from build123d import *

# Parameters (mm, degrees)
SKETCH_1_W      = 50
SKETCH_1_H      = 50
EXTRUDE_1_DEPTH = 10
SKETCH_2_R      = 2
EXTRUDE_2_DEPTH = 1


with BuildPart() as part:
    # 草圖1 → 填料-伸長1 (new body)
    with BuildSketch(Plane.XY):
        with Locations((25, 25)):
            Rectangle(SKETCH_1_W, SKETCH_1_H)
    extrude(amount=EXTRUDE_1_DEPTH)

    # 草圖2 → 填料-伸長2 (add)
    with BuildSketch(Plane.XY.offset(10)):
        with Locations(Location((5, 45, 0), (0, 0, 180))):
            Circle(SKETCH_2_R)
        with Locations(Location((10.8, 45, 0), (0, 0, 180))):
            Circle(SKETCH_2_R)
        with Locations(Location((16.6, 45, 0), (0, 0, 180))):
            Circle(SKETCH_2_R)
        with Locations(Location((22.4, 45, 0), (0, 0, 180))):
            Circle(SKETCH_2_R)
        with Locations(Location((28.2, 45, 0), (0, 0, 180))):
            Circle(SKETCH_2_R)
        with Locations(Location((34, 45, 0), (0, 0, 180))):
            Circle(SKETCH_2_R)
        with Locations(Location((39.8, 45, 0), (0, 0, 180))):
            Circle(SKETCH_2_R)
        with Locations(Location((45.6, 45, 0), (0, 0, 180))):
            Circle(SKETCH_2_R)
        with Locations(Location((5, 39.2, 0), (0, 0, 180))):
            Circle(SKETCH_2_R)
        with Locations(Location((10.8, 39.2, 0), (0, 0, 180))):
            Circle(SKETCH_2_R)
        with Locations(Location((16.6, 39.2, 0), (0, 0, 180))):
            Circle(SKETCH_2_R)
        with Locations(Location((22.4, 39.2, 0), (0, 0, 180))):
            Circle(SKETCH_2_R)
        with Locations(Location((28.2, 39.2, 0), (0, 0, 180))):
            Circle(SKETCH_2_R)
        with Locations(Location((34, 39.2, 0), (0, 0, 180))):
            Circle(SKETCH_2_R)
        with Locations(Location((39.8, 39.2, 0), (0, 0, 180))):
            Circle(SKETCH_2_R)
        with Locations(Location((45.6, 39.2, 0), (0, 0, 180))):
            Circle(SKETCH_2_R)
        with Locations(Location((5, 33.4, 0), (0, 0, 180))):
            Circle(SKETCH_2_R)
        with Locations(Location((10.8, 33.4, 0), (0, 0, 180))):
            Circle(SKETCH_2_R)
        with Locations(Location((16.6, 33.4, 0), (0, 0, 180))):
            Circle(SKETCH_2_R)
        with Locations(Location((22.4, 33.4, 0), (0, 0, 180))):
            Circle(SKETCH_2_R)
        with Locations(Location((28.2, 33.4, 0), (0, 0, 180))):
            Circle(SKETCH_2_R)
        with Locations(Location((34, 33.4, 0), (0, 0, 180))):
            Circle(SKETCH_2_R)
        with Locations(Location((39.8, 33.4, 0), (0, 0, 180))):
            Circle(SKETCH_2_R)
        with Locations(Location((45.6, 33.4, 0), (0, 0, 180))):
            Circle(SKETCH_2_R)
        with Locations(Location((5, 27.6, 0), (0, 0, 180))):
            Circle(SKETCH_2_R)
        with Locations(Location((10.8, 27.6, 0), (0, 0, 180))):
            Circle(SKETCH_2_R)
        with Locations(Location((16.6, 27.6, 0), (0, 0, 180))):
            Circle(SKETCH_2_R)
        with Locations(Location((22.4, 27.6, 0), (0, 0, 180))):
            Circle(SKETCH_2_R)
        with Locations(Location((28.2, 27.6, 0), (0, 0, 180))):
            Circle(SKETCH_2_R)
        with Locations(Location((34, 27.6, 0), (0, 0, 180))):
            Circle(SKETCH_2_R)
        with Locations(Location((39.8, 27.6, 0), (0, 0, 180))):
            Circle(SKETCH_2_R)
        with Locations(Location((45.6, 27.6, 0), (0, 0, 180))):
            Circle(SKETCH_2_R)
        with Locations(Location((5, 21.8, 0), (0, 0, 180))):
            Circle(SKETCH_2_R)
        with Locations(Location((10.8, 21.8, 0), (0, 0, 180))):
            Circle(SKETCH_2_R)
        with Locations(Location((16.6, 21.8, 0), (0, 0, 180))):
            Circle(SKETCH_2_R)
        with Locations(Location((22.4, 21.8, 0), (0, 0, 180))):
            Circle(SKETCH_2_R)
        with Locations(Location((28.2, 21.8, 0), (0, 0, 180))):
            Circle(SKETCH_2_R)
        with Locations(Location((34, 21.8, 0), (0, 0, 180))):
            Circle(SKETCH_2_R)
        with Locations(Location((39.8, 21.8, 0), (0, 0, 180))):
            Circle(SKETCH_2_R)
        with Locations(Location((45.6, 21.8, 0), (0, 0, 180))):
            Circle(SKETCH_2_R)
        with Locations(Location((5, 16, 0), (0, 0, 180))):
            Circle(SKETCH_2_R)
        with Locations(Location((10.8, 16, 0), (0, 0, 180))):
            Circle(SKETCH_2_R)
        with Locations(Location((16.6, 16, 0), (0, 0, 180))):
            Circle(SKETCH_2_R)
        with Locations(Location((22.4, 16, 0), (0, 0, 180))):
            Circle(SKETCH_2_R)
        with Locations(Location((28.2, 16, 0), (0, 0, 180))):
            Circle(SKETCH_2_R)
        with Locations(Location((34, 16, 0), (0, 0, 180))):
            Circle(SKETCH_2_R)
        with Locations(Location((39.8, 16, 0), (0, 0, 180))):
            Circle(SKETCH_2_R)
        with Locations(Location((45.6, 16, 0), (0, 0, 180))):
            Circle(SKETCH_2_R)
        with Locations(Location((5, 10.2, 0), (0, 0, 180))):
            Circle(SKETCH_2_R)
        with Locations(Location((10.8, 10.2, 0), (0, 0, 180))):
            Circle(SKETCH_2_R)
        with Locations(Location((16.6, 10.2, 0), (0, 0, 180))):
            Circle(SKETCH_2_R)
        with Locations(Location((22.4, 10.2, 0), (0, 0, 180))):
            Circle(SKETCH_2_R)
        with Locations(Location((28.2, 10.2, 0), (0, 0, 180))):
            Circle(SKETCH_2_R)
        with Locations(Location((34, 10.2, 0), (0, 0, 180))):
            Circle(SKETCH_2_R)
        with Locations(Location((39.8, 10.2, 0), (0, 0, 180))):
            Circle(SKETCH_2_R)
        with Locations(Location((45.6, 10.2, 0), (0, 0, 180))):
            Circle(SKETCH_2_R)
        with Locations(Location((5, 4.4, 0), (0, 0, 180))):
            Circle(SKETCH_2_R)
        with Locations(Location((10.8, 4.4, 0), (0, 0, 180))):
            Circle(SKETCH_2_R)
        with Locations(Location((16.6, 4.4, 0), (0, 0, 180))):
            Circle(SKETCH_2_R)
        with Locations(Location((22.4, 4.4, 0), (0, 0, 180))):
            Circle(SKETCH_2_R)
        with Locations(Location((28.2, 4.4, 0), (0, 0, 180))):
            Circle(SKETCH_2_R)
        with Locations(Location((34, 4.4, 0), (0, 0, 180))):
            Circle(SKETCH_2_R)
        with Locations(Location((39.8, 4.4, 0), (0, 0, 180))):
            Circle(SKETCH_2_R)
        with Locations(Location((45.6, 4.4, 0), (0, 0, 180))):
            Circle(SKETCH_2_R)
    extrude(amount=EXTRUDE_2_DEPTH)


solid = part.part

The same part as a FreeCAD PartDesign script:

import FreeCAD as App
import Part
import Sketcher

V = App.Vector
Q = App.Units.Quantity

doc = App.newDocument("Part")
body = doc.addObject("PartDesign::Body", "Body")

# Sketch on XY plane
sketch1 = body.newObject("Sketcher::SketchObject", "Sketch")
sketch1.AttachmentSupport = (doc.getObject("XY_Plane"), [""])
sketch1.MapMode = "FlatFace"
sketch1.addGeometry([
    Part.LineSegment(V(0, 50, 0), V(0, 0, 0)),
    Part.LineSegment(V(0, 0, 0), V(50, 0, 0)),
    Part.LineSegment(V(50, 0, 0), V(50, 50, 0)),
    Part.LineSegment(V(50, 50, 0), V(0, 50, 0)),
], False)
sketch1.addConstraint([
    Sketcher.Constraint("Coincident", 0, 2, 1, 1),
    Sketcher.Constraint("Coincident", 1, 2, 2, 1),
    Sketcher.Constraint("Coincident", 2, 2, 3, 1),
    Sketcher.Constraint("Coincident", 3, 2, 0, 1),
    Sketcher.Constraint("Vertical", 0),
    Sketcher.Constraint("Horizontal", 1),
    Sketcher.Constraint("Vertical", 2),
    Sketcher.Constraint("Horizontal", 3),
    Sketcher.Constraint("Coincident", 0, 2, -1, 1),
    Sketcher.Constraint("Equal", 3, 0),
    Sketcher.Constraint("DistanceX", 1, 1, 1, 2, Q("50 mm")),
])
pad1 = body.newObject("PartDesign::Pad", "Pad")
pad1.Profile = sketch1
pad1.Length = 10

# Sketch on XY plane
sketch2 = body.newObject("Sketcher::SketchObject", "Sketch001")
sketch2.AttachmentSupport = (doc.getObject("XY_Plane"), [""])
sketch2.MapMode = "FlatFace"
sketch2.AttachmentOffset = App.Placement(V(0, 0, 10), App.Rotation())
sketch2.addGeometry([
    Part.Circle(V(5, 45, 0), V(0, 0, 1), 2),  # 0
    Part.Circle(V(10.8, 45, 0), V(0, 0, 1), 2),  # 1
    Part.Circle(V(16.6, 45, 0), V(0, 0, 1), 2),  # 2
    Part.Circle(V(22.4, 45, 0), V(0, 0, 1), 2),  # 3
    Part.Circle(V(28.2, 45, 0), V(0, 0, 1), 2),  # 4
    Part.Circle(V(34, 45, 0), V(0, 0, 1), 2),  # 5
    Part.Circle(V(39.8, 45, 0), V(0, 0, 1), 2),  # 6
    Part.Circle(V(45.6, 45, 0), V(0, 0, 1), 2),  # 7
    Part.Circle(V(5, 39.2, 0), V(0, 0, 1), 2),  # 8
    Part.Circle(V(10.8, 39.2, 0), V(0, 0, 1), 2),  # 9
    Part.Circle(V(16.6, 39.2, 0), V(0, 0, 1), 2),  # 10
    Part.Circle(V(22.4, 39.2, 0), V(0, 0, 1), 2),  # 11
    Part.Circle(V(28.2, 39.2, 0), V(0, 0, 1), 2),  # 12
    Part.Circle(V(34, 39.2, 0), V(0, 0, 1), 2),  # 13
    Part.Circle(V(39.8, 39.2, 0), V(0, 0, 1), 2),  # 14
    Part.Circle(V(45.6, 39.2, 0), V(0, 0, 1), 2),  # 15
    Part.Circle(V(5, 33.4, 0), V(0, 0, 1), 2),  # 16
    Part.Circle(V(10.8, 33.4, 0), V(0, 0, 1), 2),  # 17
    Part.Circle(V(16.6, 33.4, 0), V(0, 0, 1), 2),  # 18
    Part.Circle(V(22.4, 33.4, 0), V(0, 0, 1), 2),  # 19
    Part.Circle(V(28.2, 33.4, 0), V(0, 0, 1), 2),  # 20
    Part.Circle(V(34, 33.4, 0), V(0, 0, 1), 2),  # 21
    Part.Circle(V(39.8, 33.4, 0), V(0, 0, 1), 2),  # 22
    Part.Circle(V(45.6, 33.4, 0), V(0, 0, 1), 2),  # 23
    Part.Circle(V(5, 27.6, 0), V(0, 0, 1), 2),  # 24
    Part.Circle(V(10.8, 27.6, 0), V(0, 0, 1), 2),  # 25
    Part.Circle(V(16.6, 27.6, 0), V(0, 0, 1), 2),  # 26
    Part.Circle(V(22.4, 27.6, 0), V(0, 0, 1), 2),  # 27
    Part.Circle(V(28.2, 27.6, 0), V(0, 0, 1), 2),  # 28
    Part.Circle(V(34, 27.6, 0), V(0, 0, 1), 2),  # 29
    Part.Circle(V(39.8, 27.6, 0), V(0, 0, 1), 2),  # 30
    Part.Circle(V(45.6, 27.6, 0), V(0, 0, 1), 2),  # 31
    Part.Circle(V(5, 21.8, 0), V(0, 0, 1), 2),  # 32
    Part.Circle(V(10.8, 21.8, 0), V(0, 0, 1), 2),  # 33
    Part.Circle(V(16.6, 21.8, 0), V(0, 0, 1), 2),  # 34
    Part.Circle(V(22.4, 21.8, 0), V(0, 0, 1), 2),  # 35
    Part.Circle(V(28.2, 21.8, 0), V(0, 0, 1), 2),  # 36
    Part.Circle(V(34, 21.8, 0), V(0, 0, 1), 2),  # 37
    Part.Circle(V(39.8, 21.8, 0), V(0, 0, 1), 2),  # 38
    Part.Circle(V(45.6, 21.8, 0), V(0, 0, 1), 2),  # 39
    Part.Circle(V(5, 16, 0), V(0, 0, 1), 2),  # 40
    Part.Circle(V(10.8, 16, 0), V(0, 0, 1), 2),  # 41
    Part.Circle(V(16.6, 16, 0), V(0, 0, 1), 2),  # 42
    Part.Circle(V(22.4, 16, 0), V(0, 0, 1), 2),  # 43
    Part.Circle(V(28.2, 16, 0), V(0, 0, 1), 2),  # 44
    Part.Circle(V(34, 16, 0), V(0, 0, 1), 2),  # 45
    Part.Circle(V(39.8, 16, 0), V(0, 0, 1), 2),  # 46
    Part.Circle(V(45.6, 16, 0), V(0, 0, 1), 2),  # 47
    Part.Circle(V(5, 10.2, 0), V(0, 0, 1), 2),  # 48
    Part.Circle(V(10.8, 10.2, 0), V(0, 0, 1), 2),  # 49
    Part.Circle(V(16.6, 10.2, 0), V(0, 0, 1), 2),  # 50
    Part.Circle(V(22.4, 10.2, 0), V(0, 0, 1), 2),  # 51
    Part.Circle(V(28.2, 10.2, 0), V(0, 0, 1), 2),  # 52
    Part.Circle(V(34, 10.2, 0), V(0, 0, 1), 2),  # 53
    Part.Circle(V(39.8, 10.2, 0), V(0, 0, 1), 2),  # 54
    Part.Circle(V(45.6, 10.2, 0), V(0, 0, 1), 2),  # 55
    Part.Circle(V(5, 4.4, 0), V(0, 0, 1), 2),  # 56
    Part.Circle(V(10.8, 4.4, 0), V(0, 0, 1), 2),  # 57
    Part.Circle(V(16.6, 4.4, 0), V(0, 0, 1), 2),  # 58
    Part.Circle(V(22.4, 4.4, 0), V(0, 0, 1), 2),  # 59
    Part.Circle(V(28.2, 4.4, 0), V(0, 0, 1), 2),  # 60
    Part.Circle(V(34, 4.4, 0), V(0, 0, 1), 2),  # 61
    Part.Circle(V(39.8, 4.4, 0), V(0, 0, 1), 2),  # 62
    Part.Circle(V(45.6, 4.4, 0), V(0, 0, 1), 2),  # 63
], False)
sketch2.addConstraint([
    Sketcher.Constraint("Equal", 0, 1),
    Sketcher.Constraint("Equal", 1, 2),
    Sketcher.Constraint("Equal", 2, 3),
    Sketcher.Constraint("Equal", 3, 4),
    Sketcher.Constraint("Equal", 4, 5),
    Sketcher.Constraint("Equal", 5, 6),
    Sketcher.Constraint("Equal", 6, 7),
    Sketcher.Constraint("Equal", 7, 8),
    Sketcher.Constraint("Equal", 8, 9),
    Sketcher.Constraint("Equal", 9, 10),
    Sketcher.Constraint("Equal", 10, 11),
    Sketcher.Constraint("Equal", 11, 12),
    Sketcher.Constraint("Equal", 12, 13),
    Sketcher.Constraint("Equal", 13, 14),
    Sketcher.Constraint("Equal", 14, 15),
    Sketcher.Constraint("Equal", 15, 16),
    Sketcher.Constraint("Equal", 16, 17),
    Sketcher.Constraint("Equal", 17, 18),
    Sketcher.Constraint("Equal", 18, 19),
    Sketcher.Constraint("Equal", 19, 20),
    Sketcher.Constraint("Equal", 20, 21),
    Sketcher.Constraint("Equal", 21, 22),
    Sketcher.Constraint("Equal", 22, 23),
    Sketcher.Constraint("Equal", 23, 24),
    Sketcher.Constraint("Equal", 24, 25),
    Sketcher.Constraint("Equal", 25, 26),
    Sketcher.Constraint("Equal", 26, 27),
    Sketcher.Constraint("Equal", 27, 28),
    Sketcher.Constraint("Equal", 28, 29),
    Sketcher.Constraint("Equal", 29, 30),
    Sketcher.Constraint("Equal", 30, 31),
    Sketcher.Constraint("Equal", 31, 32),
    Sketcher.Constraint("Equal", 32, 33),
    Sketcher.Constraint("Equal", 33, 34),
    Sketcher.Constraint("Equal", 34, 35),
    Sketcher.Constraint("Equal", 35, 36),
    Sketcher.Constraint("Equal", 36, 37),
    Sketcher.Constraint("Equal", 37, 38),
    Sketcher.Constraint("Equal", 38, 39),
    Sketcher.Constraint("Equal", 39, 40),
    Sketcher.Constraint("Equal", 40, 41),
    Sketcher.Constraint("Equal", 41, 42),
    Sketcher.Constraint("Equal", 42, 43),
    Sketcher.Constraint("Equal", 43, 44),
    Sketcher.Constraint("Equal", 44, 45),
    Sketcher.Constraint("Equal", 45, 46),
    Sketcher.Constraint("Equal", 46, 47),
    Sketcher.Constraint("Equal", 47, 48),
    Sketcher.Constraint("Equal", 48, 49),
    Sketcher.Constraint("Equal", 49, 50),
    Sketcher.Constraint("Equal", 50, 51),
    Sketcher.Constraint("Equal", 51, 52),
    Sketcher.Constraint("Equal", 52, 53),
    Sketcher.Constraint("Equal", 53, 54),
    Sketcher.Constraint("Equal", 54, 55),
    Sketcher.Constraint("Equal", 55, 56),
    Sketcher.Constraint("Equal", 56, 57),
    Sketcher.Constraint("Equal", 57, 58),
    Sketcher.Constraint("Equal", 58, 59),
    Sketcher.Constraint("Equal", 59, 60),
    Sketcher.Constraint("Equal", 60, 61),
    Sketcher.Constraint("Equal", 61, 62),
    Sketcher.Constraint("Equal", 62, 63),
    Sketcher.Constraint("Horizontal", 0, 3, 1, 3),
    Sketcher.Constraint("Horizontal", 1, 3, 2, 3),
    Sketcher.Constraint("Horizontal", 2, 3, 3, 3),
    Sketcher.Constraint("Horizontal", 3, 3, 4, 3),
    Sketcher.Constraint("Horizontal", 4, 3, 5, 3),
    Sketcher.Constraint("Horizontal", 5, 3, 6, 3),
    Sketcher.Constraint("Horizontal", 6, 3, 7, 3),
    Sketcher.Constraint("Horizontal", 8, 3, 9, 3),
    Sketcher.Constraint("Horizontal", 9, 3, 10, 3),
    Sketcher.Constraint("Horizontal", 10, 3, 11, 3),
    Sketcher.Constraint("Horizontal", 11, 3, 12, 3),
    Sketcher.Constraint("Horizontal", 12, 3, 13, 3),
    Sketcher.Constraint("Horizontal", 13, 3, 14, 3),
    Sketcher.Constraint("Horizontal", 14, 3, 15, 3),
    Sketcher.Constraint("Horizontal", 16, 3, 17, 3),
    Sketcher.Constraint("Horizontal", 17, 3, 18, 3),
    Sketcher.Constraint("Horizontal", 18, 3, 19, 3),
    Sketcher.Constraint("Horizontal", 19, 3, 20, 3),
    Sketcher.Constraint("Horizontal", 20, 3, 21, 3),
    Sketcher.Constraint("Horizontal", 21, 3, 22, 3),
    Sketcher.Constraint("Horizontal", 22, 3, 23, 3),
    Sketcher.Constraint("Horizontal", 24, 3, 25, 3),
    Sketcher.Constraint("Horizontal", 25, 3, 26, 3),
    Sketcher.Constraint("Horizontal", 26, 3, 27, 3),
    Sketcher.Constraint("Horizontal", 27, 3, 28, 3),
    Sketcher.Constraint("Horizontal", 28, 3, 29, 3),
    Sketcher.Constraint("Horizontal", 29, 3, 30, 3),
    Sketcher.Constraint("Horizontal", 30, 3, 31, 3),
    Sketcher.Constraint("Horizontal", 32, 3, 33, 3),
    Sketcher.Constraint("Horizontal", 33, 3, 34, 3),
    Sketcher.Constraint("Horizontal", 34, 3, 35, 3),
    Sketcher.Constraint("Horizontal", 35, 3, 36, 3),
    Sketcher.Constraint("Horizontal", 36, 3, 37, 3),
    Sketcher.Constraint("Horizontal", 37, 3, 38, 3),
    Sketcher.Constraint("Horizontal", 38, 3, 39, 3),
    Sketcher.Constraint("Horizontal", 40, 3, 41, 3),
    Sketcher.Constraint("Horizontal", 41, 3, 42, 3),
    Sketcher.Constraint("Horizontal", 42, 3, 43, 3),
    Sketcher.Constraint("Horizontal", 43, 3, 44, 3),
    Sketcher.Constraint("Horizontal", 44, 3, 45, 3),
    Sketcher.Constraint("Horizontal", 45, 3, 46, 3),
    Sketcher.Constraint("Horizontal", 46, 3, 47, 3),
    Sketcher.Constraint("Horizontal", 48, 3, 49, 3),
    Sketcher.Constraint("Horizontal", 49, 3, 50, 3),
    Sketcher.Constraint("Horizontal", 50, 3, 51, 3),
    Sketcher.Constraint("Horizontal", 51, 3, 52, 3),
    Sketcher.Constraint("Horizontal", 52, 3, 53, 3),
    Sketcher.Constraint("Horizontal", 53, 3, 54, 3),
    Sketcher.Constraint("Horizontal", 54, 3, 55, 3),
    Sketcher.Constraint("Horizontal", 56, 3, 57, 3),
    Sketcher.Constraint("Horizontal", 57, 3, 58, 3),
    Sketcher.Constraint("Horizontal", 58, 3, 59, 3),
    Sketcher.Constraint("Horizontal", 59, 3, 60, 3),
    Sketcher.Constraint("Horizontal", 60, 3, 61, 3),
    Sketcher.Constraint("Horizontal", 61, 3, 62, 3),
    Sketcher.Constraint("Horizontal", 62, 3, 63, 3),
    Sketcher.Constraint("Vertical", 0, 3, 8, 3),
    Sketcher.Constraint("Vertical", 1, 3, 9, 3),
    Sketcher.Constraint("Vertical", 2, 3, 10, 3),
    Sketcher.Constraint("Vertical", 3, 3, 11, 3),
    Sketcher.Constraint("Vertical", 4, 3, 12, 3),
    Sketcher.Constraint("Vertical", 5, 3, 13, 3),
    Sketcher.Constraint("Vertical", 6, 3, 14, 3),
    Sketcher.Constraint("Vertical", 7, 3, 15, 3),
    Sketcher.Constraint("Vertical", 8, 3, 16, 3),
    Sketcher.Constraint("Vertical", 9, 3, 17, 3),
    Sketcher.Constraint("Vertical", 10, 3, 18, 3),
    Sketcher.Constraint("Vertical", 11, 3, 19, 3),
    Sketcher.Constraint("Vertical", 12, 3, 20, 3),
    Sketcher.Constraint("Vertical", 13, 3, 21, 3),
    Sketcher.Constraint("Vertical", 14, 3, 22, 3),
    Sketcher.Constraint("Vertical", 15, 3, 23, 3),
    Sketcher.Constraint("Vertical", 16, 3, 24, 3),
    Sketcher.Constraint("Vertical", 17, 3, 25, 3),
    Sketcher.Constraint("Vertical", 18, 3, 26, 3),
    Sketcher.Constraint("Vertical", 19, 3, 27, 3),
    Sketcher.Constraint("Vertical", 20, 3, 28, 3),
    Sketcher.Constraint("Vertical", 21, 3, 29, 3),
    Sketcher.Constraint("Vertical", 22, 3, 30, 3),
    Sketcher.Constraint("Vertical", 23, 3, 31, 3),
    Sketcher.Constraint("Vertical", 24, 3, 32, 3),
    Sketcher.Constraint("Vertical", 25, 3, 33, 3),
    Sketcher.Constraint("Vertical", 26, 3, 34, 3),
    Sketcher.Constraint("Vertical", 27, 3, 35, 3),
    Sketcher.Constraint("Vertical", 28, 3, 36, 3),
    Sketcher.Constraint("Vertical", 29, 3, 37, 3),
    Sketcher.Constraint("Vertical", 30, 3, 38, 3),
    Sketcher.Constraint("Vertical", 31, 3, 39, 3),
    Sketcher.Constraint("Vertical", 32, 3, 40, 3),
    Sketcher.Constraint("Vertical", 33, 3, 41, 3),
    Sketcher.Constraint("Vertical", 34, 3, 42, 3),
    Sketcher.Constraint("Vertical", 35, 3, 43, 3),
    Sketcher.Constraint("Vertical", 36, 3, 44, 3),
    Sketcher.Constraint("Vertical", 37, 3, 45, 3),
    Sketcher.Constraint("Vertical", 38, 3, 46, 3),
    Sketcher.Constraint("Vertical", 39, 3, 47, 3),
    Sketcher.Constraint("Vertical", 40, 3, 48, 3),
    Sketcher.Constraint("Vertical", 41, 3, 49, 3),
    Sketcher.Constraint("Vertical", 42, 3, 50, 3),
    Sketcher.Constraint("Vertical", 43, 3, 51, 3),
    Sketcher.Constraint("Vertical", 44, 3, 52, 3),
    Sketcher.Constraint("Vertical", 45, 3, 53, 3),
    Sketcher.Constraint("Vertical", 46, 3, 54, 3),
    Sketcher.Constraint("Vertical", 47, 3, 55, 3),
    Sketcher.Constraint("Vertical", 48, 3, 56, 3),
    Sketcher.Constraint("Vertical", 49, 3, 57, 3),
    Sketcher.Constraint("Vertical", 50, 3, 58, 3),
    Sketcher.Constraint("Vertical", 51, 3, 59, 3),
    Sketcher.Constraint("Vertical", 52, 3, 60, 3),
    Sketcher.Constraint("Vertical", 53, 3, 61, 3),
    Sketcher.Constraint("Vertical", 54, 3, 62, 3),
    Sketcher.Constraint("Vertical", 55, 3, 63, 3),
    Sketcher.Constraint("Diameter", 0, Q("4 mm")),
    Sketcher.Constraint("DistanceX", -1, 1, 0, 3, Q("5 mm")),
    Sketcher.Constraint("DistanceY", -1, 1, 0, 3, Q("45 mm")),
    Sketcher.Constraint("DistanceX", -1, 1, 5, 3, Q("34 mm")),
    Sketcher.Constraint("DistanceY", -1, 1, 40, 3, Q("16 mm")),
    Sketcher.Constraint("DistanceX", -1, 1, 1, 3, Q("10.8 mm")),
    Sketcher.Constraint("DistanceX", -1, 1, 2, 3, Q("16.6 mm")),
    Sketcher.Constraint("DistanceX", -1, 1, 3, 3, Q("22.4 mm")),
    Sketcher.Constraint("DistanceX", -1, 1, 4, 3, Q("28.2 mm")),
    Sketcher.Constraint("DistanceX", -1, 1, 6, 3, Q("39.8 mm")),
    Sketcher.Constraint("DistanceX", -1, 1, 7, 3, Q("45.6 mm")),
    Sketcher.Constraint("DistanceY", -1, 1, 8, 3, Q("39.2 mm")),
    Sketcher.Constraint("DistanceY", -1, 1, 16, 3, Q("33.4 mm")),
    Sketcher.Constraint("DistanceY", -1, 1, 24, 3, Q("27.6 mm")),
    Sketcher.Constraint("DistanceY", -1, 1, 32, 3, Q("21.8 mm")),
    Sketcher.Constraint("DistanceY", -1, 1, 48, 3, Q("10.2 mm")),
    Sketcher.Constraint("DistanceY", -1, 1, 56, 3, Q("4.4 mm")),
])
pad2 = body.newObject("PartDesign::Pad", "Pad001")
pad2.Profile = sketch2
pad2.Length = 1

doc.recompute()
